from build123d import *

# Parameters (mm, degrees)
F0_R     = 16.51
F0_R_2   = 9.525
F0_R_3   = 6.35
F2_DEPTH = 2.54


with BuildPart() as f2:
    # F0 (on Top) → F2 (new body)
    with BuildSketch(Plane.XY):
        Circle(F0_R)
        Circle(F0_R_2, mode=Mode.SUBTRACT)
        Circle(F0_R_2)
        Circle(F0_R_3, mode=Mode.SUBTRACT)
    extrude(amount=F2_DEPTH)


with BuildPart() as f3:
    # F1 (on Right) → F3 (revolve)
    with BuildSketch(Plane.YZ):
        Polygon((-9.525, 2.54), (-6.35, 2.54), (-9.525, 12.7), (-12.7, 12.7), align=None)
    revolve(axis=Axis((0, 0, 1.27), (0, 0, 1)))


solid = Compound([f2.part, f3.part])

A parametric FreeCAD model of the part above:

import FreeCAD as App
import Part
import Sketcher

V = App.Vector
Q = App.Units.Quantity

doc = App.newDocument("Part")
body = doc.addObject("PartDesign::Body", "Body")

sketch1 = body.newObject("Sketcher::SketchObject", "Sketch")
sketch1.AttachmentSupport = (doc.getObject("XY_Plane"), [""])
sketch1.MapMode = "FlatFace"
sketch1.addGeometry([
    Part.Circle(V(0, 0, 0), V(0, 0, 1), 16.51),
    Part.Circle(V(0, 0, 0), V(0, 0, 1), 6.35),
], False)
sketch1.addConstraint([
    Sketcher.Constraint("Coincident", 0, 3, -1, 1),
    Sketcher.Constraint("Coincident", 1, 3, -1, 1),
    Sketcher.Constraint("Diameter", 0, Q("1.3 in")),
    Sketcher.Constraint("Diameter", 1, Q("0.5 in")),
])
pad1 = body.newObject("PartDesign::Pad", "Pad")
pad1.Profile = sketch1
pad1.Length = Q("0.1 in")
body2 = doc.addObject("PartDesign::Body", "Body001")

sketch2 = body2.newObject("Sketcher::SketchObject", "Sketch001")
sketch2.AttachmentSupport = (doc.getObject("YZ_Plane001"), [""])
sketch2.MapMode = "FlatFace"
sketch2.addGeometry([
    Part.LineSegment(V(-9.525, 2.54, 0), V(-6.35, 2.54, 0)),
    Part.LineSegment(V(-6.35, 2.54, 0), V(-9.525, 12.7, 0)),
    Part.LineSegment(V(-9.525, 12.7, 0), V(-12.7, 12.7, 0)),
    Part.LineSegment(V(-12.7, 12.7, 0), V(-9.525, 2.54, 0)),
], False)
sketch2.addConstraint([
    Sketcher.Constraint("Coincident", 0, 2, 1, 1),
    Sketcher.Constraint("Coincident", 1, 2, 2, 1),
    Sketcher.Constraint("Coincident", 2, 2, 3, 1),
    Sketcher.Constraint("Coincident", 3, 2, 0, 1),
    Sketcher.Constraint("Horizontal", 0),
    Sketcher.Constraint("Horizontal", 2),
    Sketcher.Constraint("Parallel", 1, 3),
    Sketcher.Constraint("Vertical", 1, 2, 3, 2),
    Sketcher.Constraint("DistanceY", -1, 1, 0, 2, Q("0.1 in")),
    Sketcher.Constraint("DistanceY", -1, 1, 1, 2, Q("0.5 in")),
    Sketcher.Constraint("DistanceX", 2, 2, -1, 1, Q("0.5 in")),
    Sketcher.Constraint("DistanceX", 0, 1, 0, 2, Q("0.125 in")),
])
revolution = body2.newObject("PartDesign::Revolution", "Revolution")
revolution.Profile = sketch2
revolution.ReferenceAxis = (sketch2, ["V_Axis"])
revolution.Angle = 360

doc.recompute()
